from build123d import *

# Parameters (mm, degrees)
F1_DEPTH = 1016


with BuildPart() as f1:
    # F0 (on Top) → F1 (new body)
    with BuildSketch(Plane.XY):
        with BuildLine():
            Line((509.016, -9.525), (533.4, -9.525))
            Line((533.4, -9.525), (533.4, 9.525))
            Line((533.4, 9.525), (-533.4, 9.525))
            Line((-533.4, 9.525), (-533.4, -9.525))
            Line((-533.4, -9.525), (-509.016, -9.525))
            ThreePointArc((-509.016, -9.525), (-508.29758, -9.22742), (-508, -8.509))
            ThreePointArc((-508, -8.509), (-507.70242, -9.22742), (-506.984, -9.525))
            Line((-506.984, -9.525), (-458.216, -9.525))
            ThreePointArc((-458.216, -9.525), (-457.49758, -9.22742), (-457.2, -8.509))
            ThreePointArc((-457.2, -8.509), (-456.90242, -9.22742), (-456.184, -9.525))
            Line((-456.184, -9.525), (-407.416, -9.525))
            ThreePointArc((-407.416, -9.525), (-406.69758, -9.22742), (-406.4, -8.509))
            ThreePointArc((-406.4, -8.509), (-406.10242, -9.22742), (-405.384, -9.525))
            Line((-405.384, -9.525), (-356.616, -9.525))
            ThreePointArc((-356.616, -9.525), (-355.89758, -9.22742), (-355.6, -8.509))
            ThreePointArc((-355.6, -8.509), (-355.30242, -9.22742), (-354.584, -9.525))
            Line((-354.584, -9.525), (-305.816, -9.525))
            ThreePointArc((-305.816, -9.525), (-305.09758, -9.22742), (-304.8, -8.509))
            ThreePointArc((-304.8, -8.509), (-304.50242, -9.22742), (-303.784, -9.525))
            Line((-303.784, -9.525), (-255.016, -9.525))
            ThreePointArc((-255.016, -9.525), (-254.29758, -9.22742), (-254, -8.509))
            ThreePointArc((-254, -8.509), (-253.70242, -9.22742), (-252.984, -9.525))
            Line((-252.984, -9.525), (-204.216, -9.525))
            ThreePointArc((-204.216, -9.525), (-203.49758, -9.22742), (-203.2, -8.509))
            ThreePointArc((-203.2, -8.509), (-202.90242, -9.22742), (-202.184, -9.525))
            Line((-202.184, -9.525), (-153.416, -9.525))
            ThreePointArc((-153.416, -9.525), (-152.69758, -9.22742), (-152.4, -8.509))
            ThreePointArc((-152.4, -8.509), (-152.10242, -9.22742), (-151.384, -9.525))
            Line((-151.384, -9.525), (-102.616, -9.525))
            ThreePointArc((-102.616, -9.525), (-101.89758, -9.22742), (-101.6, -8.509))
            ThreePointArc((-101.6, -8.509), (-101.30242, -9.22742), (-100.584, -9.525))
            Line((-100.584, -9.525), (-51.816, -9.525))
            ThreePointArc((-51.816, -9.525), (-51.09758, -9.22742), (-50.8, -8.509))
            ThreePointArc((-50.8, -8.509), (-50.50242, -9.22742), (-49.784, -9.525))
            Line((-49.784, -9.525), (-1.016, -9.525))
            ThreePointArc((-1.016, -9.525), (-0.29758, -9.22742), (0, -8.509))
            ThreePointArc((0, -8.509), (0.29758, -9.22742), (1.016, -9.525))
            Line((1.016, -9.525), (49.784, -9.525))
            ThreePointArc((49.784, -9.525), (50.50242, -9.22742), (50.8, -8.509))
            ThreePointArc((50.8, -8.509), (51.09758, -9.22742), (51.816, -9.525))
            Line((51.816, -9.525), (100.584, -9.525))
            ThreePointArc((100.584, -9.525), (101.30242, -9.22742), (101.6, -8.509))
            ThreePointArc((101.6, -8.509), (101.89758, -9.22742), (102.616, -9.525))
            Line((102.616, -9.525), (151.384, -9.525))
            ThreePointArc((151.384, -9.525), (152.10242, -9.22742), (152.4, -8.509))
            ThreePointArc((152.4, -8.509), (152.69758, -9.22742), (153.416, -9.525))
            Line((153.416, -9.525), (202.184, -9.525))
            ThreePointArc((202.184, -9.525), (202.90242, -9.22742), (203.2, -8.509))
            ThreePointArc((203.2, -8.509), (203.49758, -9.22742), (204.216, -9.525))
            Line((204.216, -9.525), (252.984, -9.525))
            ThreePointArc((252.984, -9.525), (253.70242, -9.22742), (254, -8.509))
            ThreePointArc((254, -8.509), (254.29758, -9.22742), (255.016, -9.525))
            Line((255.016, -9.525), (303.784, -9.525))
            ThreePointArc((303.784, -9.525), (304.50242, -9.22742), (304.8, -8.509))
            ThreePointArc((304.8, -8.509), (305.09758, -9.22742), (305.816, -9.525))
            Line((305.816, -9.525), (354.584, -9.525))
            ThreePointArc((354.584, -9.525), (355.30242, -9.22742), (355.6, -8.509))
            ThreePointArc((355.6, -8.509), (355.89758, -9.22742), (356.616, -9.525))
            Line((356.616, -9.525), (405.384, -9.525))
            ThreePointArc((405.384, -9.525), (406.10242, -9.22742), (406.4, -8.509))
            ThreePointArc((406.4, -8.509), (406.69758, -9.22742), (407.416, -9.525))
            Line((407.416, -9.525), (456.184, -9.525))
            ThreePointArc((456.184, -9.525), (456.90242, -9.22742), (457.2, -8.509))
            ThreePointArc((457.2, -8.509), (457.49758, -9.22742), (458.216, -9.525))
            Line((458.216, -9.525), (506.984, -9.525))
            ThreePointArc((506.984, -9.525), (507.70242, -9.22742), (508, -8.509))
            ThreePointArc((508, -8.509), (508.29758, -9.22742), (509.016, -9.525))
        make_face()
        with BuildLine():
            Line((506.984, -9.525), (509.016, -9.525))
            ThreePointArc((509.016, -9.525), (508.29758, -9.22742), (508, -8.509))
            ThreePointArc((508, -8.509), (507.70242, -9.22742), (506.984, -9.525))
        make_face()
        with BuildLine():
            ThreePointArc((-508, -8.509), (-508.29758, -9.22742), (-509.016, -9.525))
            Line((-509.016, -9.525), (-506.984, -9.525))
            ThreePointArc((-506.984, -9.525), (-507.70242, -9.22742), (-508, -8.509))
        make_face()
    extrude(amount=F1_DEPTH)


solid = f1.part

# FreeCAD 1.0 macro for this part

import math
import FreeCAD as App
import Part
import Sketcher
Q = App.Units.Quantity

doc = App.newDocument("Part")
params = doc.addObject("Spreadsheet::Sheet", "Params")
for row, (alias, value) in enumerate([
    ("sketch1_width", "42 in"),
    ("sketch1_radius", "0.0400001 in"),
    ("sketch1_height", "0.75 in"),
    ("pad1_length", "40 in"),
], start=1):
    params.set(f"A{row}", alias)
    params.set(f"B{row}", "=" + value)
    params.setAlias(f"B{row}", alias)

body = doc.addObject("PartDesign::Body", "Body")

# Sketch on XY plane
sketch1 = doc.addObject("Sketcher::SketchObject", "Sketch")
body.addObject(sketch1)
sketch1.AttachmentSupport = (doc.XY_Plane, [""])
sketch1.MapMode = "FlatFace"
sketch1.addGeometry(Part.LineSegment(App.Vector(533.4, -9.525, 0), App.Vector(533.4, 9.525, 0)), False)
sketch1.addGeometry(Part.LineSegment(App.Vector(533.4, 9.525, 0), App.Vector(-533.4, 9.525, 0)), False)
sketch1.addGeometry(Part.LineSegment(App.Vector(-533.4, 9.525, 0), App.Vector(-533.4, -9.525, 0)), False)
sketch1.addGeometry(Part.LineSegment(App.Vector(-533.4, -9.525, 0), App.Vector(-458.216, -9.525, 0)), False)
sketch1.addGeometry(Part.ArcOfCircle(Part.Circle(App.Vector(-458.216002, -8.508998, 0), App.Vector(0, 0, 1), 1.016002), math.radians(-89.999906), math.radians(-0.000094)), False)
sketch1.addGeometry(Part.ArcOfCircle(Part.Circle(App.Vector(-456.183998, -8.508998, 0), App.Vector(0, 0, 1), 1.016002), math.radians(-179.999906), math.radians(-90.000094)), False)
sketch1.addGeometry(Part.LineSegment(App.Vector(-456.184, -9.525, 0), App.Vector(-407.416, -9.525, 0)), False)
sketch1.addGeometry(Part.ArcOfCircle(Part.Circle(App.Vector(-407.416002, -8.508998, 0), App.Vector(0, 0, 1), 1.016002), math.radians(-89.999906), math.radians(-0.000094)), False)
sketch1.addGeometry(Part.ArcOfCircle(Part.Circle(App.Vector(-405.383998, -8.508998, 0), App.Vector(0, 0, 1), 1.016002), math.radians(-179.999906), math.radians(-90.000094)), False)
sketch1.addGeometry(Part.LineSegment(App.Vector(-405.384, -9.525, 0), App.Vector(-356.616, -9.525, 0)), False)
sketch1.addGeometry(Part.ArcOfCircle(Part.Circle(App.Vector(-356.616002, -8.508998, 0), App.Vector(0, 0, 1), 1.016002), math.radians(-89.999906), math.radians(-0.000094)), False)
sketch1.addGeometry(Part.ArcOfCircle(Part.Circle(App.Vector(-354.583998, -8.508998, 0), App.Vector(0, 0, 1), 1.016002), math.radians(-179.999906), math.radians(-90.000094)), False)
sketch1.addGeometry(Part.LineSegment(App.Vector(-354.584, -9.525, 0), App.Vector(-305.816, -9.525, 0)), False)
sketch1.addGeometry(Part.ArcOfCircle(Part.Circle(App.Vector(-305.816002, -8.508998, 0), App.Vector(0, 0, 1), 1.016002), math.radians(-89.999906), math.radians(-0.000094)), False)
sketch1.addGeometry(Part.ArcOfCircle(Part.Circle(App.Vector(-303.783998, -8.508998, 0), App.Vector(0, 0, 1), 1.016002), math.radians(-179.999906), math.radians(-90.000094)), False)
sketch1.addGeometry(Part.LineSegment(App.Vector(-303.784, -9.525, 0), App.Vector(-255.016, -9.525, 0)), False)
sketch1.addGeometry(Part.ArcOfCircle(Part.Circle(App.Vector(-255.016002, -8.508998, 0), App.Vector(0, 0, 1), 1.016002), math.radians(-89.999906), math.radians(-0.000094)), False)
sketch1.addGeometry(Part.ArcOfCircle(Part.Circle(App.Vector(-252.983998, -8.508998, 0), App.Vector(0, 0, 1), 1.016002), math.radians(-179.999906), math.radians(-90.000094)), False)
sketch1.addGeometry(Part.LineSegment(App.Vector(-252.984, -9.525, 0), App.Vector(-204.216, -9.525, 0)), False)
sketch1.addGeometry(Part.ArcOfCircle(Part.Circle(App.Vector(-204.216002, -8.508998, 0), App.Vector(0, 0, 1), 1.016002), math.radians(-89.999906), math.radians(-0.000094)), False)
sketch1.addGeometry(Part.ArcOfCircle(Part.Circle(App.Vector(-202.183998, -8.508998, 0), App.Vector(0, 0, 1), 1.016002), math.radians(-179.999906), math.radians(-90.000094)), False)
sketch1.addGeometry(Part.LineSegment(App.Vector(-202.184, -9.525, 0), App.Vector(-153.416, -9.525, 0)), False)
sketch1.addGeometry(Part.ArcOfCircle(Part.Circle(App.Vector(-153.416002, -8.508998, 0), App.Vector(0, 0, 1), 1.016002), math.radians(-89.999906), math.radians(-0.000094)), False)
sketch1.addGeometry(Part.ArcOfCircle(Part.Circle(App.Vector(-151.383998, -8.508998, 0), App.Vector(0, 0, 1), 1.016002), math.radians(-179.999906), math.radians(-90.000094)), False)
sketch1.addGeometry(Part.LineSegment(App.Vector(-151.384, -9.525, 0), App.Vector(-102.616, -9.525, 0)), False)
sketch1.addGeometry(Part.ArcOfCircle(Part.Circle(App.Vector(-102.616002, -8.508998, 0), App.Vector(0, 0, 1), 1.016002), math.radians(-89.999906), math.radians(-0.000094)), False)
sketch1.addGeometry(Part.ArcOfCircle(Part.Circle(App.Vector(-100.583998, -8.508998, 0), App.Vector(0, 0, 1), 1.016002), math.radians(-179.999906), math.radians(-90.000094)), False)
sketch1.addGeometry(Part.LineSegment(App.Vector(-100.584, -9.525, 0), App.Vector(-51.816, -9.525, 0)), False)
sketch1.addGeometry(Part.ArcOfCircle(Part.Circle(App.Vector(-51.816002, -8.508998, 0), App.Vector(0, 0, 1), 1.016002), math.radians(-89.999906), math.radians(-0.000094)), False)
sketch1.addGeometry(Part.ArcOfCircle(Part.Circle(App.Vector(-49.783998, -8.508998, 0), App.Vector(0, 0, 1), 1.016002), math.radians(-179.999906), math.radians(-90.000094)), False)
sketch1.addGeometry(Part.LineSegment(App.Vector(-49.784, -9.525, 0), App.Vector(-1.016, -9.525, 0)), False)
sketch1.addGeometry(Part.ArcOfCircle(Part.Circle(App.Vector(-1.016002, -8.508998, 0), App.Vector(0, 0, 1), 1.016002), math.radians(-89.999906), math.radians(-0.000094)), False)
sketch1.addGeometry(Part.ArcOfCircle(Part.Circle(App.Vector(1.016002, -8.508998, 0), App.Vector(0, 0, 1), 1.016002), math.radians(-179.999906), math.radians(-90.000094)), False)
sketch1.addGeometry(Part.LineSegment(App.Vector(1.016, -9.525, 0), App.Vector(49.784, -9.525, 0)), False)
sketch1.addGeometry(Part.ArcOfCircle(Part.Circle(App.Vector(49.783998, -8.508998, 0), App.Vector(0, 0, 1), 1.016002), math.radians(-89.999906), math.radians(-0.000094)), False)
sketch1.addGeometry(Part.ArcOfCircle(Part.Circle(App.Vector(51.816002, -8.508998, 0), App.Vector(0, 0, 1), 1.016002), math.radians(-179.999906), math.radians(-90.000094)), False)
sketch1.addGeometry(Part.LineSegment(App.Vector(51.816, -9.525, 0), App.Vector(100.584, -9.525, 0)), False)
sketch1.addGeometry(Part.ArcOfCircle(Part.Circle(App.Vector(100.583998, -8.508998, 0), App.Vector(0, 0, 1), 1.016002), math.radians(-89.999906), math.radians(-0.000094)), False)
sketch1.addGeometry(Part.ArcOfCircle(Part.Circle(App.Vector(102.616002, -8.508998, 0), App.Vector(0, 0, 1), 1.016002), math.radians(-179.999906), math.radians(-90.000094)), False)
sketch1.addGeometry(Part.LineSegment(App.Vector(102.616, -9.525, 0), App.Vector(151.384, -9.525, 0)), False)
sketch1.addGeometry(Part.ArcOfCircle(Part.Circle(App.Vector(151.383998, -8.508998, 0), App.Vector(0, 0, 1), 1.016002), math.radians(-89.999906), math.radians(-0.000094)), False)
sketch1.addGeometry(Part.ArcOfCircle(Part.Circle(App.Vector(153.416002, -8.508998, 0), App.Vector(0, 0, 1), 1.016002), math.radians(-179.999906), math.radians(-90.000094)), False)
sketch1.addGeometry(Part.LineSegment(App.Vector(153.416, -9.525, 0), App.Vector(202.184, -9.525, 0)), False)
sketch1.addGeometry(Part.ArcOfCircle(Part.Circle(App.Vector(202.183998, -8.508998, 0), App.Vector(0, 0, 1), 1.016002), math.radians(-89.999906), math.radians(-0.000094)), False)
sketch1.addGeometry(Part.ArcOfCircle(Part.Circle(App.Vector(204.216002, -8.508998, 0), App.Vector(0, 0, 1), 1.016002), math.radians(-179.999906), math.radians(-90.000094)), False)
sketch1.addGeometry(Part.LineSegment(App.Vector(204.216, -9.525, 0), App.Vector(252.984, -9.525, 0)), False)
sketch1.addGeometry(Part.ArcOfCircle(Part.Circle(App.Vector(252.983998, -8.508998, 0), App.Vector(0, 0, 1), 1.016002), math.radians(-89.999906), math.radians(-0.000094)), False)
sketch1.addGeometry(Part.ArcOfCircle(Part.Circle(App.Vector(255.016002, -8.508998, 0), App.Vector(0, 0, 1), 1.016002), math.radians(-179.999906), math.radians(-90.000094)), False)
sketch1.addGeometry(Part.LineSegment(App.Vector(255.016, -9.525, 0), App.Vector(303.784, -9.525, 0)), False)
sketch1.addGeometry(Part.ArcOfCircle(Part.Circle(App.Vector(303.783998, -8.508998, 0), App.Vector(0, 0, 1), 1.016002), math.radians(-89.999906), math.radians(-0.000094)), False)
sketch1.addGeometry(Part.ArcOfCircle(Part.Circle(App.Vector(305.816002, -8.508998, 0), App.Vector(0, 0, 1), 1.016002), math.radians(-179.999906), math.radians(-90.000094)), False)
sketch1.addGeometry(Part.LineSegment(App.Vector(305.816, -9.525, 0), App.Vector(354.584, -9.525, 0)), False)
sketch1.addGeometry(Part.ArcOfCircle(Part.Circle(App.Vector(354.583998, -8.508998, 0), App.Vector(0, 0, 1), 1.016002), math.radians(-89.999906), math.radians(-0.000094)), False)
sketch1.addGeometry(Part.ArcOfCircle(Part.Circle(App.Vector(356.616002, -8.508998, 0), App.Vector(0, 0, 1), 1.016002), math.radians(-179.999906), math.radians(-90.000094)), False)
sketch1.addGeometry(Part.LineSegment(App.Vector(356.616, -9.525, 0), App.Vector(405.384, -9.525, 0)), False)
sketch1.addGeometry(Part.ArcOfCircle(Part.Circle(App.Vector(405.383998, -8.508998, 0), App.Vector(0, 0, 1), 1.016002), math.radians(-89.999906), math.radians(-0.000094)), False)
sketch1.addGeometry(Part.ArcOfCircle(Part.Circle(App.Vector(407.416002, -8.508998, 0), App.Vector(0, 0, 1), 1.016002), math.radians(-179.999906), math.radians(-90.000094)), False)
sketch1.addGeometry(Part.LineSegment(App.Vector(407.416, -9.525, 0), App.Vector(456.184, -9.525, 0)), False)
sketch1.addGeometry(Part.ArcOfCircle(Part.Circle(App.Vector(456.183998, -8.508998, 0), App.Vector(0, 0, 1), 1.016002), math.radians(-89.999906), math.radians(-0.000094)), False)
sketch1.addGeometry(Part.ArcOfCircle(Part.Circle(App.Vector(458.216002, -8.508998, 0), App.Vector(0, 0, 1), 1.016002), math.radians(-179.999906), math.radians(-90.000094)), False)
sketch1.addGeometry(Part.LineSegment(App.Vector(458.216, -9.525, 0), App.Vector(533.4, -9.525, 0)), False)
sketch1.addConstraint(Sketcher.Constraint("Coincident", 0, 2, 1, 1))
sketch1.addConstraint(Sketcher.Constraint("Coincident", 1, 2, 2, 1))
sketch1.addConstraint(Sketcher.Constraint("Coincident", 2, 2, 3, 1))
sketch1.addConstraint(Sketcher.Constraint("Tangent", 3, 2, 4, 1))
sketch1.addConstraint(Sketcher.Constraint("Coincident", 4, 2, 5, 1))
sketch1.addConstraint(Sketcher.Constraint("Tangent", 5, 2, 6, 1))
sketch1.addConstraint(Sketcher.Constraint("Tangent", 6, 2, 7, 1))
sketch1.addConstraint(Sketcher.Constraint("Coincident", 7, 2, 8, 1))
sketch1.addConstraint(Sketcher.Constraint("Tangent", 8, 2, 9, 1))
sketch1.addConstraint(Sketcher.Constraint("Tangent", 9, 2, 10, 1))
sketch1.addConstraint(Sketcher.Constraint("Coincident", 10, 2, 11, 1))
sketch1.addConstraint(Sketcher.Constraint("Tangent", 11, 2, 12, 1))
sketch1.addConstraint(Sketcher.Constraint("Tangent", 12, 2, 13, 1))
sketch1.addConstraint(Sketcher.Constraint("Coincident", 13, 2, 14, 1))
sketch1.addConstraint(Sketcher.Constraint("Tangent", 14, 2, 15, 1))
sketch1.addConstraint(Sketcher.Constraint("Tangent", 15, 2, 16, 1))
sketch1.addConstraint(Sketcher.Constraint("Coincident", 16, 2, 17, 1))
sketch1.addConstraint(Sketcher.Constraint("Tangent", 17, 2, 18, 1))
sketch1.addConstraint(Sketcher.Constraint("Tangent", 18, 2, 19, 1))
sketch1.addConstraint(Sketcher.Constraint("Coincident", 19, 2, 20, 1))
sketch1.addConstraint(Sketcher.Constraint("Tangent", 20, 2, 21, 1))
sketch1.addConstraint(Sketcher.Constraint("Tangent", 21, 2, 22, 1))
sketch1.addConstraint(Sketcher.Constraint("Coincident", 22, 2, 23, 1))
sketch1.addConstraint(Sketcher.Constraint("Tangent", 23, 2, 24, 1))
sketch1.addConstraint(Sketcher.Constraint("Tangent", 24, 2, 25, 1))
sketch1.addConstraint(Sketcher.Constraint("Coincident", 25, 2, 26, 1))
sketch1.addConstraint(Sketcher.Constraint("Tangent", 26, 2, 27, 1))
sketch1.addConstraint(Sketcher.Constraint("Tangent", 27, 2, 28, 1))
sketch1.addConstraint(Sketcher.Constraint("Coincident", 28, 2, 29, 1))
sketch1.addConstraint(Sketcher.Constraint("Tangent", 29, 2, 30, 1))
sketch1.addConstraint(Sketcher.Constraint("Tangent", 30, 2, 31, 1))
sketch1.addConstraint(Sketcher.Constraint("Coincident", 31, 2, 32, 1))
sketch1.addConstraint(Sketcher.Constraint("Tangent", 32, 2, 33, 1))
sketch1.addConstraint(Sketcher.Constraint("Tangent", 33, 2, 34, 1))
sketch1.addConstraint(Sketcher.Constraint("Coincident", 34, 2, 35, 1))
sketch1.addConstraint(Sketcher.Constraint("Tangent", 35, 2, 36, 1))
sketch1.addConstraint(Sketcher.Constraint("Tangent", 36, 2, 37, 1))
sketch1.addConstraint(Sketcher.Constraint("Coincident", 37, 2, 38, 1))
sketch1.addConstraint(Sketcher.Constraint("Tangent", 38, 2, 39, 1))
sketch1.addConstraint(Sketcher.Constraint("Tangent", 39, 2, 40, 1))
sketch1.addConstraint(Sketcher.Constraint("Coincident", 40, 2, 41, 1))
sketch1.addConstraint(Sketcher.Constraint("Tangent", 41, 2, 42, 1))
sketch1.addConstraint(Sketcher.Constraint("Tangent", 42, 2, 43, 1))
sketch1.addConstraint(Sketcher.Constraint("Coincident", 43, 2, 44, 1))
sketch1.addConstraint(Sketcher.Constraint("Tangent", 44, 2, 45, 1))
sketch1.addConstraint(Sketcher.Constraint("Tangent", 45, 2, 46, 1))
sketch1.addConstraint(Sketcher.Constraint("Coincident", 46, 2, 47, 1))
sketch1.addConstraint(Sketcher.Constraint("Tangent", 47, 2, 48, 1))
sketch1.addConstraint(Sketcher.Constraint("Tangent", 48, 2, 49, 1))
sketch1.addConstraint(Sketcher.Constraint("Coincident", 49, 2, 50, 1))
sketch1.addConstraint(Sketcher.Constraint("Tangent", 50, 2, 51, 1))
sketch1.addConstraint(Sketcher.Constraint("Tangent", 51, 2, 52, 1))
sketch1.addConstraint(Sketcher.Constraint("Coincident", 52, 2, 53, 1))
sketch1.addConstraint(Sketcher.Constraint("Tangent", 53, 2, 54, 1))
sketch1.addConstraint(Sketcher.Constraint("Tangent", 54, 2, 55, 1))
sketch1.addConstraint(Sketcher.Constraint("Coincident", 55, 2, 56, 1))
sketch1.addConstraint(Sketcher.Constraint("Tangent", 56, 2, 57, 1))
sketch1.addConstraint(Sketcher.Constraint("Tangent", 57, 2, 58, 1))
sketch1.addConstraint(Sketcher.Constraint("Coincident", 58, 2, 59, 1))
sketch1.addConstraint(Sketcher.Constraint("Tangent", 59, 2, 60, 1))
sketch1.addConstraint(Sketcher.Constraint("Coincident", 60, 2, 0, 1))
sketch1.addConstraint(Sketcher.Constraint("Vertical", 0))
sketch1.addConstraint(Sketcher.Constraint("Horizontal", 1))
sketch1.addConstraint(Sketcher.Constraint("Vertical", 2))
sketch1.addConstraint(Sketcher.Constraint("Horizontal", 3))
sketch1.addConstraint(Sketcher.Constraint("Horizontal", 6))
sketch1.addConstraint(Sketcher.Constraint("Horizontal", 9))
sketch1.addConstraint(Sketcher.Constraint("Horizontal", 12))
sketch1.addConstraint(Sketcher.Constraint("Horizontal", 15))
sketch1.addConstraint(Sketcher.Constraint("Horizontal", 18))
sketch1.addConstraint(Sketcher.Constraint("Horizontal", 21))
sketch1.addConstraint(Sketcher.Constraint("Horizontal", 24))
sketch1.addConstraint(Sketcher.Constraint("Horizontal", 27))
sketch1.addConstraint(Sketcher.Constraint("Horizontal", 30))
sketch1.addConstraint(Sketcher.Constraint("Horizontal", 33))
sketch1.addConstraint(Sketcher.Constraint("Horizontal", 36))
sketch1.addConstraint(Sketcher.Constraint("Horizontal", 39))
sketch1.addConstraint(Sketcher.Constraint("Horizontal", 42))
sketch1.addConstraint(Sketcher.Constraint("Horizontal", 45))
sketch1.addConstraint(Sketcher.Constraint("Horizontal", 48))
sketch1.addConstraint(Sketcher.Constraint("Horizontal", 51))
sketch1.addConstraint(Sketcher.Constraint("Horizontal", 54))
sketch1.addConstraint(Sketcher.Constraint("Horizontal", 57))
sketch1.addConstraint(Sketcher.Constraint("Horizontal", 60))
sketch1.addConstraint(Sketcher.Constraint("Equal", 4, 5))
sketch1.addConstraint(Sketcher.Constraint("Equal", 5, 7))
sketch1.addConstraint(Sketcher.Constraint("Equal", 7, 8))
sketch1.addConstraint(Sketcher.Constraint("Equal", 8, 10))
sketch1.addConstraint(Sketcher.Constraint("Equal", 10, 11))
sketch1.addConstraint(Sketcher.Constraint("Equal", 11, 13))
sketch1.addConstraint(Sketcher.Constraint("Equal", 13, 14))
sketch1.addConstraint(Sketcher.Constraint("Equal", 14, 16))
sketch1.addConstraint(Sketcher.Constraint("Equal", 16, 17))
sketch1.addConstraint(Sketcher.Constraint("Equal", 17, 19))
sketch1.addConstraint(Sketcher.Constraint("Equal", 19, 20))
sketch1.addConstraint(Sketcher.Constraint("Equal", 20, 22))
sketch1.addConstraint(Sketcher.Constraint("Equal", 22, 23))
sketch1.addConstraint(Sketcher.Constraint("Equal", 23, 25))
sketch1.addConstraint(Sketcher.Constraint("Equal", 25, 26))
sketch1.addConstraint(Sketcher.Constraint("Equal", 26, 28))
sketch1.addConstraint(Sketcher.Constraint("Equal", 28, 29))
sketch1.addConstraint(Sketcher.Constraint("Equal", 29, 31))
sketch1.addConstraint(Sketcher.Constraint("Equal", 31, 32))
sketch1.addConstraint(Sketcher.Constraint("Equal", 32, 34))
sketch1.addConstraint(Sketcher.Constraint("Equal", 34, 35))
sketch1.addConstraint(Sketcher.Constraint("Equal", 35, 37))
sketch1.addConstraint(Sketcher.Constraint("Equal", 37, 38))
sketch1.addConstraint(Sketcher.Constraint("Equal", 38, 40))
sketch1.addConstraint(Sketcher.Constraint("Equal", 40, 41))
sketch1.addConstraint(Sketcher.Constraint("Equal", 41, 43))
sketch1.addConstraint(Sketcher.Constraint("Equal", 43, 44))
sketch1.addConstraint(Sketcher.Constraint("Equal", 44, 46))
sketch1.addConstraint(Sketcher.Constraint("Equal", 46, 47))
sketch1.addConstraint(Sketcher.Constraint("Equal", 47, 49))
sketch1.addConstraint(Sketcher.Constraint("Equal", 49, 50))
sketch1.addConstraint(Sketcher.Constraint("Equal", 50, 52))
sketch1.addConstraint(Sketcher.Constraint("Equal", 52, 53))
sketch1.addConstraint(Sketcher.Constraint("Equal", 53, 55))
sketch1.addConstraint(Sketcher.Constraint("Equal", 55, 56))
sketch1.addConstraint(Sketcher.Constraint("Equal", 56, 58))
sketch1.addConstraint(Sketcher.Constraint("Equal", 58, 59))
sketch1.addConstraint(Sketcher.Constraint("Symmetric", 0, 2, 2, 2, -1, 1))
sketch1.addConstraint(Sketcher.Constraint("Symmetric", 31, 3, 32, 3, -2))
sketch1.addConstraint(Sketcher.Constraint("Symmetric", 28, 3, 35, 3, -2))
sketch1.addConstraint(Sketcher.Constraint("Symmetric", 25, 3, 38, 3, -2))
sketch1.addConstraint(Sketcher.Constraint("Symmetric", 22, 3, 41, 3, -2))
sketch1.addConstraint(Sketcher.Constraint("Symmetric", 19, 3, 44, 3, -2))
sketch1.addConstraint(Sketcher.Constraint("Symmetric", 16, 3, 47, 3, -2))
sketch1.addConstraint(Sketcher.Constraint("Symmetric", 13, 3, 50, 3, -2))
sketch1.addConstraint(Sketcher.Constraint("Symmetric", 10, 3, 53, 3, -2))
sketch1.addConstraint(Sketcher.Constraint("Symmetric", 7, 3, 56, 3, -2))
sketch1.addConstraint(Sketcher.Constraint("Symmetric", 4, 3, 59, 3, -2))
sketch1.addConstraint(Sketcher.Constraint("Horizontal", 4, 3, 5, 3))
sketch1.addConstraint(Sketcher.Constraint("Horizontal", 7, 3, 8, 3))
sketch1.addConstraint(Sketcher.Constraint("Horizontal", 10, 3, 11, 3))
sketch1.addConstraint(Sketcher.Constraint("Horizontal", 13, 3, 14, 3))
sketch1.addConstraint(Sketcher.Constraint("Horizontal", 16, 3, 17, 3))
sketch1.addConstraint(Sketcher.Constraint("Horizontal", 19, 3, 20, 3))
sketch1.addConstraint(Sketcher.Constraint("Horizontal", 22, 3, 23, 3))
sketch1.addConstraint(Sketcher.Constraint("Horizontal", 25, 3, 26, 3))
sketch1.addConstraint(Sketcher.Constraint("Horizontal", 28, 3, 29, 3))
sketch1.addConstraint(Sketcher.Constraint("Horizontal", 59, 3, 4, 2))
sketch1.addConstraint(Sketcher.Constraint("Horizontal", 4, 2, 7, 2))
sketch1.addConstraint(Sketcher.Constraint("Horizontal", 7, 2, 10, 2))
sketch1.addConstraint(Sketcher.Constraint("Horizontal", 10, 2, 13, 2))
sketch1.addConstraint(Sketcher.Constraint("Horizontal", 13, 2, 16, 2))
sketch1.addConstraint(Sketcher.Constraint("Horizontal", 16, 2, 19, 2))
sketch1.addConstraint(Sketcher.Constraint("Horizontal", 19, 2, 22, 2))
sketch1.addConstraint(Sketcher.Constraint("Horizontal", 22, 2, 25, 2))
sketch1.addConstraint(Sketcher.Constraint("Horizontal", 25, 2, 28, 2))
sketch1.addConstraint(Sketcher.Constraint("Horizontal", 28, 2, 31, 2))
sketch1.addConstraint(Sketcher.Constraint("Horizontal", 31, 2, 34, 2))
sketch1.addConstraint(Sketcher.Constraint("Horizontal", 34, 2, 37, 2))
sketch1.addConstraint(Sketcher.Constraint("Horizontal", 37, 2, 40, 2))
sketch1.addConstraint(Sketcher.Constraint("Horizontal", 40, 2, 43, 2))
sketch1.addConstraint(Sketcher.Constraint("Horizontal", 43, 2, 46, 2))
sketch1.addConstraint(Sketcher.Constraint("Horizontal", 46, 2, 49, 2))
sketch1.addConstraint(Sketcher.Constraint("Horizontal", 49, 2, 52, 2))
sketch1.addConstraint(Sketcher.Constraint("Horizontal", 52, 2, 55, 2))
sketch1.addConstraint(Sketcher.Constraint("Horizontal", 55, 2, 58, 2))
sketch1.addConstraint(Sketcher.Constraint("Equal", 6, 9))
sketch1.addConstraint(Sketcher.Constraint("Equal", 9, 12))
sketch1.addConstraint(Sketcher.Constraint("Equal", 12, 15))
sketch1.addConstraint(Sketcher.Constraint("Equal", 15, 18))
sketch1.addConstraint(Sketcher.Constraint("Equal", 18, 21))
sketch1.addConstraint(Sketcher.Constraint("Equal", 21, 24))
sketch1.addConstraint(Sketcher.Constraint("Equal", 24, 27))
sketch1.addConstraint(Sketcher.Constraint("Equal", 27, 30))
sketch1.addConstraint(Sketcher.Constraint("DistanceX", 1, 2, 1, 1, Q("42 in")))
sketch1.addConstraint(Sketcher.Constraint("Radius", 4, Q("0.0400001 in")))
sketch1.addConstraint(Sketcher.Constraint("DistanceX", 4, 2, -1, 1, Q("18 in")))
sketch1.addConstraint(Sketcher.Constraint("DistanceY", 0, 1, 0, 2, Q("0.75 in")))
sketch1.setExpression("Constraints[168]", "Params.sketch1_width")
sketch1.setExpression("Constraints[169]", "Params.sketch1_radius")
sketch1.setExpression("Constraints[171]", "Params.sketch1_height")
pad1 = doc.addObject("PartDesign::Pad", "Pad")
body.addObject(pad1)
pad1.Profile = sketch1
pad1.setExpression("Length", "Params.pad1_length")

doc.recompute()
